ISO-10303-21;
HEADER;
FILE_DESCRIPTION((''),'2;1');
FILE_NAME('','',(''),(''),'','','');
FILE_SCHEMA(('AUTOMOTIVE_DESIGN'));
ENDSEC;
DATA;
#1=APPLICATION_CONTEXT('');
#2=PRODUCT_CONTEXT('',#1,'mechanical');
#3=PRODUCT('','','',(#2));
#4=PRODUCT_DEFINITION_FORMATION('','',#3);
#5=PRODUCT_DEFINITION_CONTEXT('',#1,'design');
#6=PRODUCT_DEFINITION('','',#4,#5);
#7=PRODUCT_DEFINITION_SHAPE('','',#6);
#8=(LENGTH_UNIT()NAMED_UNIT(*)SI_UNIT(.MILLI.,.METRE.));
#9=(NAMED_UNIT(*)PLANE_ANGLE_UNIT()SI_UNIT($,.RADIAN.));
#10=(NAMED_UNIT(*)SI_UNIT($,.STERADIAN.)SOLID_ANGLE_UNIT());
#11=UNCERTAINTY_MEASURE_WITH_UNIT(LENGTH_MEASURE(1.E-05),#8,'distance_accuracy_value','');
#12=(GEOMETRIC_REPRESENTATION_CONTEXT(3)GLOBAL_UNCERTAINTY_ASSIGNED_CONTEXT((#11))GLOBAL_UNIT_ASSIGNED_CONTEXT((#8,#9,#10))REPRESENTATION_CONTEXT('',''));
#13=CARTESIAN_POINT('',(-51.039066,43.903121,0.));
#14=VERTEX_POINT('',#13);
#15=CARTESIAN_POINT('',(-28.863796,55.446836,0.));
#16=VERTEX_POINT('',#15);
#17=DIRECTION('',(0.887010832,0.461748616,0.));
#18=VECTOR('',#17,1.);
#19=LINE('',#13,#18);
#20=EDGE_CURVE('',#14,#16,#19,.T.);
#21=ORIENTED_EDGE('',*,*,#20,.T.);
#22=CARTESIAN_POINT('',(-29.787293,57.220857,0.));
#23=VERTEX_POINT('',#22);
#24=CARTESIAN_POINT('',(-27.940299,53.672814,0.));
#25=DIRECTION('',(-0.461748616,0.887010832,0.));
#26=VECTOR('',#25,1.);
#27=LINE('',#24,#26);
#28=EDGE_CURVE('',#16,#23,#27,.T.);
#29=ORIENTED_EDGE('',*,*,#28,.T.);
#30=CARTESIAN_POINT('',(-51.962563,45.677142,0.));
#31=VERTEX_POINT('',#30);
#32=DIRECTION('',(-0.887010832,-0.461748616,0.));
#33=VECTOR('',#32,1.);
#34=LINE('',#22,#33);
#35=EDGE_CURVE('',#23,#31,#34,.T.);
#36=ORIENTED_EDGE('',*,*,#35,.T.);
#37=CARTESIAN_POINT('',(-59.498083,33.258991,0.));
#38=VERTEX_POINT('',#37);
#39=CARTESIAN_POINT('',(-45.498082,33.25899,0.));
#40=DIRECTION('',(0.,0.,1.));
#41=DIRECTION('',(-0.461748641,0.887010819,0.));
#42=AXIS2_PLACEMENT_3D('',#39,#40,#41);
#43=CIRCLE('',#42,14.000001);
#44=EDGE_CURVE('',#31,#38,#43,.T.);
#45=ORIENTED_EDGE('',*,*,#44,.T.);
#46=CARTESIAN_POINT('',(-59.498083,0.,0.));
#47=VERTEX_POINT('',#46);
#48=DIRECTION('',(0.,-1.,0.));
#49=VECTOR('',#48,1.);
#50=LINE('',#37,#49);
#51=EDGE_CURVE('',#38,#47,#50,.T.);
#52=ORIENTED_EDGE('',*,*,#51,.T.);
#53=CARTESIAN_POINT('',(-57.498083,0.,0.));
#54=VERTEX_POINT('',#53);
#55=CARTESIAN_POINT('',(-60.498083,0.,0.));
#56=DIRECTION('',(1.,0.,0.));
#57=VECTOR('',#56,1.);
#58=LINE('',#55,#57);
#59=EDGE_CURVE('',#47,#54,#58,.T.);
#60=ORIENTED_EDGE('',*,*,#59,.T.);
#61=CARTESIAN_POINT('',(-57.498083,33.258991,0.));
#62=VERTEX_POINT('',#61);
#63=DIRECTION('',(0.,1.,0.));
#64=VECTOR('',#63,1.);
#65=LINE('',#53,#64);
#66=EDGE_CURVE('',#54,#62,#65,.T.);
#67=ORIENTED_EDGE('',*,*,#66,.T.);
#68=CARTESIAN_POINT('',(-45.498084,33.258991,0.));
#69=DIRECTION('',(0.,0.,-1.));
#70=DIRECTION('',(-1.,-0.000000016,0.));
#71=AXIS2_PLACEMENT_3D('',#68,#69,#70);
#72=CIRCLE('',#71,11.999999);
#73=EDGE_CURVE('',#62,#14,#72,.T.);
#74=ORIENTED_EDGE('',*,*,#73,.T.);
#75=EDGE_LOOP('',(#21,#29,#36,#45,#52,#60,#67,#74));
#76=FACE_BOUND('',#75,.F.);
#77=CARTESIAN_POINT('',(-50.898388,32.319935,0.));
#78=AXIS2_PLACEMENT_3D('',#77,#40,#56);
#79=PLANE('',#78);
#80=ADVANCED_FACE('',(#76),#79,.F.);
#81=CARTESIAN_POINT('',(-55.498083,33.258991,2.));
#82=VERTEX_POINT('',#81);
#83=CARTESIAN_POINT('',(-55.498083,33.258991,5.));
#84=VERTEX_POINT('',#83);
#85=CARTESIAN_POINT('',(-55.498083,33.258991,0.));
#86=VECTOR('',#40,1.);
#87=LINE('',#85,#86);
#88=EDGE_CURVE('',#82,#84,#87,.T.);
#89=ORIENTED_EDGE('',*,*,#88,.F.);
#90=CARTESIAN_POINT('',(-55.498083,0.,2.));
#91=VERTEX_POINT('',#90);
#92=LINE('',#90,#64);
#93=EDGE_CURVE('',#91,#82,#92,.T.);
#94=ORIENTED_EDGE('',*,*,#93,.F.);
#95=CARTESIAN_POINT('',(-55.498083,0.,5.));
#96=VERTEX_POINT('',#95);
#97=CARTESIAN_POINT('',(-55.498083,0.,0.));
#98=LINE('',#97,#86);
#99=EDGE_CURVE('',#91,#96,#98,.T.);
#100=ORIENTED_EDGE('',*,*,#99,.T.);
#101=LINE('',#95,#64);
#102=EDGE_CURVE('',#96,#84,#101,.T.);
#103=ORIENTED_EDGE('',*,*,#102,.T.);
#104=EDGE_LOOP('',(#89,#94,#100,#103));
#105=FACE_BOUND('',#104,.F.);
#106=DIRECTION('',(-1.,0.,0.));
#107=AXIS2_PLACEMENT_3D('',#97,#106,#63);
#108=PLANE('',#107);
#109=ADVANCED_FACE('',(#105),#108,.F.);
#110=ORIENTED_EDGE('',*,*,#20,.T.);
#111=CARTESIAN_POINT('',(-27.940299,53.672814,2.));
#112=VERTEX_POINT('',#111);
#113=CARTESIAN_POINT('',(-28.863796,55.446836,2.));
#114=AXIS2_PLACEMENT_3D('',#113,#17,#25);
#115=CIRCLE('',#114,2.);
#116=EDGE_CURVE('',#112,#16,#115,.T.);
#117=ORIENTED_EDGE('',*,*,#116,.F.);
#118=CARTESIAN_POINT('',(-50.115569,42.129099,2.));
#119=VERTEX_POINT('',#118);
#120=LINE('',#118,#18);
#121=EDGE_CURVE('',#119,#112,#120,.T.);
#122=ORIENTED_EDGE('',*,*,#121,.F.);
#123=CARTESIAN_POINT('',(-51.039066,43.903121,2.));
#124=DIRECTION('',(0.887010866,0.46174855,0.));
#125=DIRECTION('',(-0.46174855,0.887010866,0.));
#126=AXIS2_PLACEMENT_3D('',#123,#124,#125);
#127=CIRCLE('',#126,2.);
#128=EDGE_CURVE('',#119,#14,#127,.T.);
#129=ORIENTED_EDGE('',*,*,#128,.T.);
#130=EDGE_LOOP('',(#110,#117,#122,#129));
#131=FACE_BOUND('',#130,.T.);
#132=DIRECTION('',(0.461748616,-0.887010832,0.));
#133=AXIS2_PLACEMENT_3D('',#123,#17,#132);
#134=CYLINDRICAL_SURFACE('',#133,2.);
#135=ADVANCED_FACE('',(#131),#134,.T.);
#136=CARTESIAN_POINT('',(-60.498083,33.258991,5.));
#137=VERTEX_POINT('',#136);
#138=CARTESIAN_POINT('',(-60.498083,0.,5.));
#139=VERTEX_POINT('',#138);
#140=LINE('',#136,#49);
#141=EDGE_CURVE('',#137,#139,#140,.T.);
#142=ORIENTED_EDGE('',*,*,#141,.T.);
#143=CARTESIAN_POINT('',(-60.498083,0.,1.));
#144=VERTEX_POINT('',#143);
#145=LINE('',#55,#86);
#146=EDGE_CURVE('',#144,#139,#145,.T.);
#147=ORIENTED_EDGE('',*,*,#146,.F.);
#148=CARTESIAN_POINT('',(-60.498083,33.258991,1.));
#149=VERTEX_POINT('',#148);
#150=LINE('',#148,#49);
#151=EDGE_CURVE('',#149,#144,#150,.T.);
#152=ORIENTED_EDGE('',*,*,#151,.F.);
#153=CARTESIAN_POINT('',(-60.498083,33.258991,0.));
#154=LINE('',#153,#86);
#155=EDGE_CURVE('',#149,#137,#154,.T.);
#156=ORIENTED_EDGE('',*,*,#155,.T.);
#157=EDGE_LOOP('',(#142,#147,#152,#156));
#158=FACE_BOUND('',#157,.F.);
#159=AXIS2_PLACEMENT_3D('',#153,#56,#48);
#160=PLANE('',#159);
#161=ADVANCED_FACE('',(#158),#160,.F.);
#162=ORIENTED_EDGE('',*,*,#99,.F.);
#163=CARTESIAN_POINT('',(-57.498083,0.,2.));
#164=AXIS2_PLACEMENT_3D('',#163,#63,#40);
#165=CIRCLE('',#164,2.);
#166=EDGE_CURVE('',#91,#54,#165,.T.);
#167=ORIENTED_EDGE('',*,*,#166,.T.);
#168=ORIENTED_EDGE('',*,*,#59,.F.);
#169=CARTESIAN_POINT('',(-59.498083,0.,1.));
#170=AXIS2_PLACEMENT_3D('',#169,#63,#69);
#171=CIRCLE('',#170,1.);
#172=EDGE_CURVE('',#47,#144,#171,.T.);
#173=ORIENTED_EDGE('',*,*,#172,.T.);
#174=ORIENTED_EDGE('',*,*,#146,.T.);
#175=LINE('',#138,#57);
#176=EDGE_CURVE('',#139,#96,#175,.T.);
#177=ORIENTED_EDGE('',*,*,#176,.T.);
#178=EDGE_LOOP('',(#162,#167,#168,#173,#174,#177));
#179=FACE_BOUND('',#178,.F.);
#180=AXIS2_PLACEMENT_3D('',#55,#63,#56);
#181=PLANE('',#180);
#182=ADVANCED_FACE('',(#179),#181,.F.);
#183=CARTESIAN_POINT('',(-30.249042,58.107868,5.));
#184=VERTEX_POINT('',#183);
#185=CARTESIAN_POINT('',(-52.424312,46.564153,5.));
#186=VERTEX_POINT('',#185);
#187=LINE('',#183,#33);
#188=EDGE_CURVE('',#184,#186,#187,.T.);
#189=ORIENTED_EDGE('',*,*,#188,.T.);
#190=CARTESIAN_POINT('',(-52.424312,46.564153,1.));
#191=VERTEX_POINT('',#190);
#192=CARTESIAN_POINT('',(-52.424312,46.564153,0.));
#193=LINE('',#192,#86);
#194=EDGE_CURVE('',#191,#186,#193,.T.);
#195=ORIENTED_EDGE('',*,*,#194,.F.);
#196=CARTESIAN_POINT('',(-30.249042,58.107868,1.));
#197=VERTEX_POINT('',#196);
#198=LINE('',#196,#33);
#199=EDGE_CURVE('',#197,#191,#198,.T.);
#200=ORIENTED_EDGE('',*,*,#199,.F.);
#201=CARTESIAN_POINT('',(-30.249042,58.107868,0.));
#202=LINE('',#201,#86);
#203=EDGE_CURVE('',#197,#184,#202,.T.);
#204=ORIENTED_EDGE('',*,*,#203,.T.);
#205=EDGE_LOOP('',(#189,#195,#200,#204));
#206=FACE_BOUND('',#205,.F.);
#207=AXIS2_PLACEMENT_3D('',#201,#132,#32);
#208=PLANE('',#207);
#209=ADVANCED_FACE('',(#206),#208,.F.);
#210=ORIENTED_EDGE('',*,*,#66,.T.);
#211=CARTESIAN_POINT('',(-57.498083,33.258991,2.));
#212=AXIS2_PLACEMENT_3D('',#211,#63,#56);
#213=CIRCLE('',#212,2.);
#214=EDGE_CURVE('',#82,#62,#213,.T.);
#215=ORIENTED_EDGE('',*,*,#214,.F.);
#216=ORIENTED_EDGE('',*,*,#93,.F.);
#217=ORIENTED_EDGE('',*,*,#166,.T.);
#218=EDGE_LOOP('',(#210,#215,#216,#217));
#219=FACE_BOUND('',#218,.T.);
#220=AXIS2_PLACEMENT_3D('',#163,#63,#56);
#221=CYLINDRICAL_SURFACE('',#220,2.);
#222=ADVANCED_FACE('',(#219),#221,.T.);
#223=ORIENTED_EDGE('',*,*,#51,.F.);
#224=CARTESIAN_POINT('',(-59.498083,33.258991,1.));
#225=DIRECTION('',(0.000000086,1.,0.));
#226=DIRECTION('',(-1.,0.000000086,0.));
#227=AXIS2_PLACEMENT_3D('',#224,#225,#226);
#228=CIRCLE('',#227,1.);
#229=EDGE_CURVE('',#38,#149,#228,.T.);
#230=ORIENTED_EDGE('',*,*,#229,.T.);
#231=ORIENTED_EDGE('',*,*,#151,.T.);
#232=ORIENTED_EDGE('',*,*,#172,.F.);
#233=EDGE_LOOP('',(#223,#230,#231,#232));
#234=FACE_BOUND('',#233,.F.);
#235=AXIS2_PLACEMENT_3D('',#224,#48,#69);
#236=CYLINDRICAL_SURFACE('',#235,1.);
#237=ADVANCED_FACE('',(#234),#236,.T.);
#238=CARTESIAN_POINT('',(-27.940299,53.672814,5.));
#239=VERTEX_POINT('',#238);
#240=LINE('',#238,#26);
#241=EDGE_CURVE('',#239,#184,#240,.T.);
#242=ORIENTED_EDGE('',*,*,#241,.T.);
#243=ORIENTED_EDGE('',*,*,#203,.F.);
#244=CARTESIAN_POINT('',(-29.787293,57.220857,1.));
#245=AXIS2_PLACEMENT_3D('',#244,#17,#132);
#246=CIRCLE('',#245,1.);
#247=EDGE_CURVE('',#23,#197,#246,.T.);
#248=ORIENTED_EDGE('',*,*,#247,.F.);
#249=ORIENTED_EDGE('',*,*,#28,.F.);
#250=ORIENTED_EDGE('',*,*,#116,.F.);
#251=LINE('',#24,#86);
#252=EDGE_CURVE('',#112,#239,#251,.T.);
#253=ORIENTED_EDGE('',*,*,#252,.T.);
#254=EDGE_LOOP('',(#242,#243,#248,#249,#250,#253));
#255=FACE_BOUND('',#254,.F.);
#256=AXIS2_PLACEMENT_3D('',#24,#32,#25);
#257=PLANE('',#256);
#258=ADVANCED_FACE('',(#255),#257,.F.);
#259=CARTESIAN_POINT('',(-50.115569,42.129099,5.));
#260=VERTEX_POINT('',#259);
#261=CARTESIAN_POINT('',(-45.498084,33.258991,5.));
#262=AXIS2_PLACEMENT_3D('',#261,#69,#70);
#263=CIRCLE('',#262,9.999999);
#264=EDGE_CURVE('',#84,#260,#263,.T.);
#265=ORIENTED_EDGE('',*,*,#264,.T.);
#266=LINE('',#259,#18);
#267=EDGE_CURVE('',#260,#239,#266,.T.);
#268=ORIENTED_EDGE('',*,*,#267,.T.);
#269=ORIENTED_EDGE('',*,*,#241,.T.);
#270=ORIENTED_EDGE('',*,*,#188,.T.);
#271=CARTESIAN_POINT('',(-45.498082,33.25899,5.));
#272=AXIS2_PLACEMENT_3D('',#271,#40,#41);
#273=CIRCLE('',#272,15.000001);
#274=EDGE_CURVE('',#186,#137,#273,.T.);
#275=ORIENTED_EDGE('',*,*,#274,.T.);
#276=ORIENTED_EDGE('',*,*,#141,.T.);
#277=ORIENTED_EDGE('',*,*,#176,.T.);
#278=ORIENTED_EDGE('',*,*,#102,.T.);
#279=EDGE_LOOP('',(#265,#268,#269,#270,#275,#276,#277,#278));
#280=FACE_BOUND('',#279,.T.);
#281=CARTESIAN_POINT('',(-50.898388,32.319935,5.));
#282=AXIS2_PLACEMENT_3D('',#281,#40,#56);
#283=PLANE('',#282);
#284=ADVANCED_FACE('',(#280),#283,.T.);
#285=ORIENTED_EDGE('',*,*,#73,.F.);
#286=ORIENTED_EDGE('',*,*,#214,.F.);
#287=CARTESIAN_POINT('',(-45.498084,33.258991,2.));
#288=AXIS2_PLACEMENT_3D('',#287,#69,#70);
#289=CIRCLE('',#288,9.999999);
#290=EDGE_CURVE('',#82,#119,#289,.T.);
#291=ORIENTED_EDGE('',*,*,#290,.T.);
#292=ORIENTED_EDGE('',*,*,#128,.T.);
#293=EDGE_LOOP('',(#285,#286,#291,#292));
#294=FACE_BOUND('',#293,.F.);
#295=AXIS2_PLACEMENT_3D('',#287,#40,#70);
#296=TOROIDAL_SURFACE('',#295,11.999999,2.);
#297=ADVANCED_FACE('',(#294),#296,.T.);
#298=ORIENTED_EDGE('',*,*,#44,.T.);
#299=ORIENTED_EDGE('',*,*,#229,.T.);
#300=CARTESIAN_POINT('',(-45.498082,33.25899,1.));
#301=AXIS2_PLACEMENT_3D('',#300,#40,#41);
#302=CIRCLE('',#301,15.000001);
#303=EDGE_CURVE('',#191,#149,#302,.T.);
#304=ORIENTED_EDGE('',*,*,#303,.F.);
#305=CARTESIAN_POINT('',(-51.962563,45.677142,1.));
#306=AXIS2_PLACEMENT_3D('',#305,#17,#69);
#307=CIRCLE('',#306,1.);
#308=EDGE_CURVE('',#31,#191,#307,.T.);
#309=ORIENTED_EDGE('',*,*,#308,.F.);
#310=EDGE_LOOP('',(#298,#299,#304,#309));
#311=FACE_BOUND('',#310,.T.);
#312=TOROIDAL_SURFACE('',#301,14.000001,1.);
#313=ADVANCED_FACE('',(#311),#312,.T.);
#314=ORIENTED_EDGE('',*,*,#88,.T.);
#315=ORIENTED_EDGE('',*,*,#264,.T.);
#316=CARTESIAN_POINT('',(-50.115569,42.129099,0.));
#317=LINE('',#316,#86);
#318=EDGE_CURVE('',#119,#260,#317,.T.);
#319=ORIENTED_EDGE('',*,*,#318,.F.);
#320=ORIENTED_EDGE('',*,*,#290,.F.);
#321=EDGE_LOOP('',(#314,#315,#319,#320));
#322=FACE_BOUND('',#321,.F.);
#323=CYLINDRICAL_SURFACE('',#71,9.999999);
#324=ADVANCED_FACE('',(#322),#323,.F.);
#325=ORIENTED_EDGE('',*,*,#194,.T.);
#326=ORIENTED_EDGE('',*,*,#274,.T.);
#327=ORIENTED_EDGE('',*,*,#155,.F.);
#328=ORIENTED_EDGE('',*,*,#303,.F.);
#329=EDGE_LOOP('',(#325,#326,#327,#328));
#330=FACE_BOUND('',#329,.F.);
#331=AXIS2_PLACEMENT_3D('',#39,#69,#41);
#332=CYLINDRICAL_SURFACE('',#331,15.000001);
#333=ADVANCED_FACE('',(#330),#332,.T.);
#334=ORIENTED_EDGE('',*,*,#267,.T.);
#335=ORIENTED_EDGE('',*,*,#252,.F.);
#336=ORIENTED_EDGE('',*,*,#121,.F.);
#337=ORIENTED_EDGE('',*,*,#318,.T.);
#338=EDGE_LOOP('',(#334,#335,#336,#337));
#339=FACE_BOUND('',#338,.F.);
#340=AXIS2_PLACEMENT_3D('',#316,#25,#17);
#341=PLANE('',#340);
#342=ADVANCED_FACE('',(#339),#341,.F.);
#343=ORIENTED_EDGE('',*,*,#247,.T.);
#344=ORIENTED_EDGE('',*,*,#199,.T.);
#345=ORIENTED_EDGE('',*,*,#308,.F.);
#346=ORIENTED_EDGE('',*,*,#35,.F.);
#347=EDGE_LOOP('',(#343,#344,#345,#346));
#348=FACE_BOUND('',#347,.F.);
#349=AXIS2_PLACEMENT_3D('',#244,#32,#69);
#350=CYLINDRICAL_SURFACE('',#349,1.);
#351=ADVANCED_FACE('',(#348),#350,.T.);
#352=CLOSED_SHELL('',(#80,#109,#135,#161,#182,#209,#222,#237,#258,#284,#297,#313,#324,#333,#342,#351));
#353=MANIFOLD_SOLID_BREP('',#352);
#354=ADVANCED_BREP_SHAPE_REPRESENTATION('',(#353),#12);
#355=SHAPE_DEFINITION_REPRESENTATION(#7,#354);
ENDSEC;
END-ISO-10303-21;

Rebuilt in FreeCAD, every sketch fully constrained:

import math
import FreeCAD as App
import Part
import Sketcher
Q = App.Units.Quantity


def edges_at(feature, points):
    """Names of the edges that pass closest to the given points."""
    edges = feature.Shape.Edges
    near = lambda p: min(range(len(edges)), key=lambda i: edges[i].distToShape(Part.Vertex(*p))[0])
    return sorted({f"Edge{near(p) + 1}" for p in points})

doc = App.newDocument("Part")
params = doc.addObject("Spreadsheet::Sheet", "Params")
for row, (alias, value) in enumerate([
    ("sketch1_radius", "9.999999 mm"),
    ("sketch1_radius2", "15.000001 mm"),
    ("sketch1_length", "24.999999 mm"),
    ("pad1_length", "5 mm"),
    ("fillet_radius", "2 mm"),
    ("fillet2_radius", "1 mm"),
], start=1):
    params.set(f"A{row}", alias)
    params.set(f"B{row}", "=" + value)
    params.setAlias(f"B{row}", alias)

body = doc.addObject("PartDesign::Body", "Body")

# Sketch on XY plane
sketch1 = body.newObject("Sketcher::SketchObject", "Sketch")
sketch1.AttachmentSupport = (doc.getObject("XY_Plane"), [""])
sketch1.MapMode = "FlatFace"
sketch1.addGeometry(Part.LineSegment(App.Vector(-60.5, 0, 0), App.Vector(-55.5, 0, 0)), False)
sketch1.addGeometry(Part.LineSegment(App.Vector(-55.5, 0, 0), App.Vector(-55.5, 33.3, 0)), False)
sketch1.addGeometry(Part.ArcOfCircle(Part.Circle(App.Vector(-45.5, 33.3, 0), App.Vector(0, 0, 1), 10), math.radians(117), math.radians(180)), False)
sketch1.addGeometry(Part.LineSegment(App.Vector(-50.1, 42.1, 0), App.Vector(-27.9, 53.7, 0)), False)
sketch1.addGeometry(Part.LineSegment(App.Vector(-27.9, 53.7, 0), App.Vector(-30.2, 58.1, 0)), False)
sketch1.addGeometry(Part.LineSegment(App.Vector(-30.2, 58.1, 0), App.Vector(-52.4, 46.6, 0)), False)
sketch1.addGeometry(Part.ArcOfCircle(Part.Circle(App.Vector(-45.5, 33.3, 0), App.Vector(0, 0, 1), 15), math.radians(118), math.radians(180)), False)
sketch1.addGeometry(Part.LineSegment(App.Vector(-60.5, 33.3, 0), App.Vector(-60.5, 0, 0)), False)
sketch1.addConstraint(Sketcher.Constraint("Coincident", 0, 2, 1, 1))
sketch1.addConstraint(Sketcher.Constraint("Tangent", 1, 2, 2, 2))
sketch1.addConstraint(Sketcher.Constraint("Tangent", 2, 1, 3, 1))
sketch1.addConstraint(Sketcher.Constraint("Coincident", 3, 2, 4, 1))
sketch1.addConstraint(Sketcher.Constraint("Coincident", 4, 2, 5, 1))
sketch1.addConstraint(Sketcher.Constraint("Tangent", 5, 2, 6, 1))
sketch1.addConstraint(Sketcher.Constraint("Tangent", 6, 2, 7, 1))
sketch1.addConstraint(Sketcher.Constraint("Coincident", 7, 2, 0, 1))
sketch1.addConstraint(Sketcher.Constraint("Horizontal", 0))
sketch1.addConstraint(Sketcher.Constraint("Vertical", 1))
sketch1.addConstraint(Sketcher.Constraint("Vertical", 7))
sketch1.addConstraint(Sketcher.Constraint("Coincident", 6, 3, 2, 3))
sketch1.addConstraint(Sketcher.Constraint("PointOnObject", 0, 2, -1))
sketch1.addConstraint(Sketcher.Constraint("Perpendicular", 3, 4))
sketch1.addConstraint(Sketcher.Constraint("Perpendicular", 4, 5))
sketch1.addConstraint(Sketcher.Constraint("Radius", 2, 9.999999))
sketch1.addConstraint(Sketcher.Constraint("Radius", 6, 15.000001))
sketch1.addConstraint(Sketcher.Constraint("Distance", 3, 24.999999))
sketch1.addConstraint(Sketcher.Constraint("Angle", 3, Q("27.5 deg")))
sketch1.addConstraint(Sketcher.Constraint("DistanceY", 1, 1, 1, 2, 33.258991))
sketch1.addConstraint(Sketcher.Constraint("DistanceX", 3, 2, -1, 1, 27.940299))
sketch1.setExpression("Constraints[15]", "Params.sketch1_radius")
sketch1.setExpression("Constraints[16]", "Params.sketch1_radius2")
sketch1.setExpression("Constraints[17]", "Params.sketch1_length")
pad1 = body.newObject("PartDesign::Pad", "Pad")
pad1.Profile = sketch1
pad1.setExpression("Length", "Params.pad1_length")
doc.recompute()

fillet = body.newObject("PartDesign::Fillet", "Fillet")
fillet.Base = (pad1, edges_at(pad1, [(-55.498, 16.629, 0)]))
fillet.setExpression("Radius", "Params.fillet_radius")
doc.recompute()

fillet2 = body.newObject("PartDesign::Fillet", "Fillet001")
fillet2.Base = (fillet, edges_at(fillet, [(-60.498, 16.629, 0)]))
fillet2.setExpression("Radius", "Params.fillet2_radius")

doc.recompute()
